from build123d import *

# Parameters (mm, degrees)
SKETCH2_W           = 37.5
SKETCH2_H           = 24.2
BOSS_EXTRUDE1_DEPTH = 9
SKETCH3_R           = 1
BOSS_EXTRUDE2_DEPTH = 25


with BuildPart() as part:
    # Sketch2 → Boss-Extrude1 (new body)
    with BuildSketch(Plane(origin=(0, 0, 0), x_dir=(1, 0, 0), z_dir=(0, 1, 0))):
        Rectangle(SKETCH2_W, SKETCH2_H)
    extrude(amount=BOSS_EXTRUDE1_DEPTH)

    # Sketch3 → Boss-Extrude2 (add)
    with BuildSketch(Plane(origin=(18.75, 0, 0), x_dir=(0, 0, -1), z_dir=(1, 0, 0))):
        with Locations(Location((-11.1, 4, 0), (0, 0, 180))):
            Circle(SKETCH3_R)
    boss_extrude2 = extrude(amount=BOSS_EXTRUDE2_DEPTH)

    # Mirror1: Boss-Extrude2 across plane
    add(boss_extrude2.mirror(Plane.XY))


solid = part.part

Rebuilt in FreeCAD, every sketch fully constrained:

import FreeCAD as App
import Part
import Sketcher

V = App.Vector


def add_polygon(sketch, points):
    """Adds a closed chain of lines whose ends are joined by coincident constraints."""
    first, n = sketch.GeometryCount, len(points)
    for a, b in zip(points, points[1:] + points[:1]):
        sketch.addGeometry(Part.LineSegment(App.Vector(*a, 0), App.Vector(*b, 0)), False)
    for i in range(n):
        sketch.addConstraint(Sketcher.Constraint("Coincident", first + i, 2, first + (i + 1) % n, 1))

doc = App.newDocument("Part")
body = doc.addObject("PartDesign::Body", "Body")

# Sketch on XZ plane
sketch1 = body.newObject("Sketcher::SketchObject", "Sketch")
sketch1.AttachmentSupport = (doc.getObject("XZ_Plane"), [""])
sketch1.MapMode = "FlatFace"
add_polygon(sketch1, [(-19, -12), (-19, 12), (19, 12), (19, -12)])  # lines 0-3
sketch1.addConstraint([
    Sketcher.Constraint("Vertical", 0),
    Sketcher.Constraint("Horizontal", 1),
    Sketcher.Constraint("Vertical", 2),
    Sketcher.Constraint("Horizontal", 3),
    Sketcher.Constraint("Symmetric", 0, 2, 2, 2, -1, 1),
    Sketcher.Constraint("DistanceX", 1, 1, 1, 2, 37.5),
    Sketcher.Constraint("DistanceY", 0, 1, 0, 2, 24.2),
])
pad1 = body.newObject("PartDesign::Pad", "Pad")
pad1.Profile = sketch1
pad1.Length = 9
pad1.Reversed = True

# Sketch on YZ plane
sketch2 = body.newObject("Sketcher::SketchObject", "Sketch001")
sketch2.AttachmentSupport = (doc.getObject("YZ_Plane"), [""])
sketch2.MapMode = "FlatFace"
sketch2.AttachmentOffset = App.Placement(V(0, 0, 18.75), App.Rotation())
sketch2.addGeometry(Part.Circle(V(4, 11.1, 0), V(0, 0, 1), 1), False)
sketch2.addConstraint([
    Sketcher.Constraint("Diameter", 0, 2.0),
    Sketcher.Constraint("DistanceX", -1, 1, 0, 3, 4.0),
    Sketcher.Constraint("DistanceY", -1, 1, 0, 3, 11.1),
])
pad2 = body.newObject("PartDesign::Pad", "Pad001")
pad2.Profile = sketch2
pad2.Length = 25
doc.recompute()

mirrored = body.newObject("PartDesign::Mirrored", "Mirrored")
mirrored.Originals = [pad2]
mirrored.MirrorPlane = (doc.getObject("XY_Plane"), [""])
body.Tip = mirrored

doc.recompute()
